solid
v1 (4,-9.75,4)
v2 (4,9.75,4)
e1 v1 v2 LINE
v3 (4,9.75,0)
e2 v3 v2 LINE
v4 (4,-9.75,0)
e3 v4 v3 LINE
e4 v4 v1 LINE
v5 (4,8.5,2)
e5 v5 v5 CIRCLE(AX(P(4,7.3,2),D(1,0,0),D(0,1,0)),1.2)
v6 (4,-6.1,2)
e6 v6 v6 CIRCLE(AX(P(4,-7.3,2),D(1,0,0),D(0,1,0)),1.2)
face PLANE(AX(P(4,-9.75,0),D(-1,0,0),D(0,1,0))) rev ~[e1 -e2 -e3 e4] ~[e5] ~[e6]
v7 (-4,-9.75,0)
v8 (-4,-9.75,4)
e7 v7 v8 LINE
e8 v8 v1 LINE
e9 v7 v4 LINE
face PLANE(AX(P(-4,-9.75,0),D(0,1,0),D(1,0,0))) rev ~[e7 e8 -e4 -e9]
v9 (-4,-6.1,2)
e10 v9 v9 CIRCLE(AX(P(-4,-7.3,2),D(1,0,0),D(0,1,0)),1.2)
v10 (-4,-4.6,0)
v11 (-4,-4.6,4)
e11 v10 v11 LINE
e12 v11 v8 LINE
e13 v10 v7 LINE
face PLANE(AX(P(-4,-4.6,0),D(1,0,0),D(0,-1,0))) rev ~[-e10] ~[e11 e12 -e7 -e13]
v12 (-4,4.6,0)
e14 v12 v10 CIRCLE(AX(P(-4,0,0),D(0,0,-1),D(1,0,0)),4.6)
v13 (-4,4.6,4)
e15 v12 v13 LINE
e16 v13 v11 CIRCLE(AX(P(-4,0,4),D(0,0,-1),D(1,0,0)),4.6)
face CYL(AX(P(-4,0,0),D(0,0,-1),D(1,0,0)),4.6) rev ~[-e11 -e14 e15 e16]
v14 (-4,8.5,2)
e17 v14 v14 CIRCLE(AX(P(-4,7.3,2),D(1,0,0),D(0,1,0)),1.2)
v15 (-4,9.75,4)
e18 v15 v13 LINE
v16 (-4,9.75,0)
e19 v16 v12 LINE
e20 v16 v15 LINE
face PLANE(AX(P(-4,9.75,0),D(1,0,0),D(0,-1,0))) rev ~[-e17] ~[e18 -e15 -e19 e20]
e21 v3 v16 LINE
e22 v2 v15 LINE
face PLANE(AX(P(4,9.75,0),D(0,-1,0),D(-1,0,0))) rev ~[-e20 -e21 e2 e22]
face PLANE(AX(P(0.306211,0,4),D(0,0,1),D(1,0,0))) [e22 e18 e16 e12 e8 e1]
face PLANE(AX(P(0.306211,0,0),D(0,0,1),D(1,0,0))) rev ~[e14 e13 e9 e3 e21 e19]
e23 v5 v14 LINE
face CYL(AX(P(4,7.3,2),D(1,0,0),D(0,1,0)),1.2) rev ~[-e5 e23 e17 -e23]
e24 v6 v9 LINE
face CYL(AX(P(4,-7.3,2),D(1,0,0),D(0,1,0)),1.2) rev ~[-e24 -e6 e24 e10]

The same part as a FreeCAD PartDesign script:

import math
import FreeCAD as App
import Part
import Sketcher

V = App.Vector

doc = App.newDocument("Part")
params = doc.addObject("Spreadsheet::Sheet", "Params")
for row, (alias, value) in enumerate([
    ("sketch1_radius", "4.6 mm"),
    ("sketch1_height", "19.5 mm"),
    ("pad1_length", "4 mm"),
    ("sketch2_diameter", "2.4 mm"),
    ("pocket1_length", "8 mm"),
], start=1):
    params.set(f"A{row}", alias)
    params.set(f"B{row}", "=" + value)
    params.setAlias(f"B{row}", alias)

body = doc.addObject("PartDesign::Body", "Body")

sketch1 = body.newObject("Sketcher::SketchObject", "Sketch")
sketch1.AttachmentSupport = (doc.getObject("XY_Plane"), [""])
sketch1.MapMode = "FlatFace"
sketch1.addGeometry(Part.LineSegment(V(-4, -4.6, 0), V(-4, -9.8, 0)), False)
sketch1.addGeometry(Part.LineSegment(V(-4, -9.8, 0), V(4, -9.8, 0)), False)
sketch1.addGeometry(Part.LineSegment(V(4, -9.8, 0), V(4, 9.8, 0)), False)
sketch1.addGeometry(Part.LineSegment(V(4, 9.8, 0), V(-4, 9.8, 0)), False)
sketch1.addGeometry(Part.LineSegment(V(-4, 9.8, 0), V(-4, 4.6, 0)), False)
sketch1.addGeometry(Part.ArcOfCircle(Part.Circle(V(-4, 0, 0), V(0, 0, 1), 4.6), math.radians(-90), math.radians(90)), False)
sketch1.addConstraint(Sketcher.Constraint("Coincident", 0, 2, 1, 1))
sketch1.addConstraint(Sketcher.Constraint("Coincident", 1, 2, 2, 1))
sketch1.addConstraint(Sketcher.Constraint("Coincident", 2, 2, 3, 1))
sketch1.addConstraint(Sketcher.Constraint("Coincident", 3, 2, 4, 1))
sketch1.addConstraint(Sketcher.Constraint("Coincident", 4, 2, 5, 2))
sketch1.addConstraint(Sketcher.Constraint("Coincident", 5, 1, 0, 1))
sketch1.addConstraint(Sketcher.Constraint("Vertical", 0))
sketch1.addConstraint(Sketcher.Constraint("Horizontal", 1))
sketch1.addConstraint(Sketcher.Constraint("Vertical", 2))
sketch1.addConstraint(Sketcher.Constraint("Horizontal", 3))
sketch1.addConstraint(Sketcher.Constraint("Vertical", 4))
sketch1.addConstraint(Sketcher.Constraint("Symmetric", 0, 2, 2, 2, -1, 1))
sketch1.addConstraint(Sketcher.Constraint("Symmetric", 4, 2, 5, 1, -1))
sketch1.addConstraint(Sketcher.Constraint("Vertical", 5, 3, 0, 2))
sketch1.addConstraint(Sketcher.Constraint("DistanceX", 5, 3, -1, 1, 4.0))
sketch1.addConstraint(Sketcher.Constraint("Radius", 5, 4.6))
sketch1.addConstraint(Sketcher.Constraint("DistanceY", 2, 1, 2, 2, 19.5))
sketch1.setExpression("Constraints[15]", "Params.sketch1_radius")
sketch1.setExpression("Constraints[16]", "Params.sketch1_height")
pad1 = body.newObject("PartDesign::Pad", "Pad")
pad1.Profile = sketch1
pad1.setExpression("Length", "Params.pad1_length")

sketch2 = body.newObject("Sketcher::SketchObject", "Sketch001")
sketch2.AttachmentSupport = (doc.getObject("YZ_Plane"), [""])
sketch2.MapMode = "FlatFace"
sketch2.AttachmentOffset = App.Placement(V(0, 0, 4), App.Rotation())
sketch2.addGeometry(Part.Circle(V(-7.3, 2, 0), V(0, 0, 1), 1.2), False)
sketch2.addGeometry(Part.Circle(V(7.3, 2, 0), V(0, 0, 1), 1.2), False)
sketch2.addConstraint(Sketcher.Constraint("Equal", 0, 1))
sketch2.addConstraint(Sketcher.Constraint("Symmetric", 0, 3, 1, 3, -2))
sketch2.addConstraint(Sketcher.Constraint("Diameter", 0, 2.4))
sketch2.addConstraint(Sketcher.Constraint("DistanceY", -1, 1, 0, 3, 2.0))
sketch2.addConstraint(Sketcher.Constraint("DistanceX", 0, 3, -1, 1, 7.3))
sketch2.setExpression("Constraints[2]", "Params.sketch2_diameter")
pocket1 = body.newObject("PartDesign::Pocket", "Pocket")
pocket1.Profile = sketch2
pocket1.setExpression("Length", "Params.pocket1_length")

doc.recompute()
